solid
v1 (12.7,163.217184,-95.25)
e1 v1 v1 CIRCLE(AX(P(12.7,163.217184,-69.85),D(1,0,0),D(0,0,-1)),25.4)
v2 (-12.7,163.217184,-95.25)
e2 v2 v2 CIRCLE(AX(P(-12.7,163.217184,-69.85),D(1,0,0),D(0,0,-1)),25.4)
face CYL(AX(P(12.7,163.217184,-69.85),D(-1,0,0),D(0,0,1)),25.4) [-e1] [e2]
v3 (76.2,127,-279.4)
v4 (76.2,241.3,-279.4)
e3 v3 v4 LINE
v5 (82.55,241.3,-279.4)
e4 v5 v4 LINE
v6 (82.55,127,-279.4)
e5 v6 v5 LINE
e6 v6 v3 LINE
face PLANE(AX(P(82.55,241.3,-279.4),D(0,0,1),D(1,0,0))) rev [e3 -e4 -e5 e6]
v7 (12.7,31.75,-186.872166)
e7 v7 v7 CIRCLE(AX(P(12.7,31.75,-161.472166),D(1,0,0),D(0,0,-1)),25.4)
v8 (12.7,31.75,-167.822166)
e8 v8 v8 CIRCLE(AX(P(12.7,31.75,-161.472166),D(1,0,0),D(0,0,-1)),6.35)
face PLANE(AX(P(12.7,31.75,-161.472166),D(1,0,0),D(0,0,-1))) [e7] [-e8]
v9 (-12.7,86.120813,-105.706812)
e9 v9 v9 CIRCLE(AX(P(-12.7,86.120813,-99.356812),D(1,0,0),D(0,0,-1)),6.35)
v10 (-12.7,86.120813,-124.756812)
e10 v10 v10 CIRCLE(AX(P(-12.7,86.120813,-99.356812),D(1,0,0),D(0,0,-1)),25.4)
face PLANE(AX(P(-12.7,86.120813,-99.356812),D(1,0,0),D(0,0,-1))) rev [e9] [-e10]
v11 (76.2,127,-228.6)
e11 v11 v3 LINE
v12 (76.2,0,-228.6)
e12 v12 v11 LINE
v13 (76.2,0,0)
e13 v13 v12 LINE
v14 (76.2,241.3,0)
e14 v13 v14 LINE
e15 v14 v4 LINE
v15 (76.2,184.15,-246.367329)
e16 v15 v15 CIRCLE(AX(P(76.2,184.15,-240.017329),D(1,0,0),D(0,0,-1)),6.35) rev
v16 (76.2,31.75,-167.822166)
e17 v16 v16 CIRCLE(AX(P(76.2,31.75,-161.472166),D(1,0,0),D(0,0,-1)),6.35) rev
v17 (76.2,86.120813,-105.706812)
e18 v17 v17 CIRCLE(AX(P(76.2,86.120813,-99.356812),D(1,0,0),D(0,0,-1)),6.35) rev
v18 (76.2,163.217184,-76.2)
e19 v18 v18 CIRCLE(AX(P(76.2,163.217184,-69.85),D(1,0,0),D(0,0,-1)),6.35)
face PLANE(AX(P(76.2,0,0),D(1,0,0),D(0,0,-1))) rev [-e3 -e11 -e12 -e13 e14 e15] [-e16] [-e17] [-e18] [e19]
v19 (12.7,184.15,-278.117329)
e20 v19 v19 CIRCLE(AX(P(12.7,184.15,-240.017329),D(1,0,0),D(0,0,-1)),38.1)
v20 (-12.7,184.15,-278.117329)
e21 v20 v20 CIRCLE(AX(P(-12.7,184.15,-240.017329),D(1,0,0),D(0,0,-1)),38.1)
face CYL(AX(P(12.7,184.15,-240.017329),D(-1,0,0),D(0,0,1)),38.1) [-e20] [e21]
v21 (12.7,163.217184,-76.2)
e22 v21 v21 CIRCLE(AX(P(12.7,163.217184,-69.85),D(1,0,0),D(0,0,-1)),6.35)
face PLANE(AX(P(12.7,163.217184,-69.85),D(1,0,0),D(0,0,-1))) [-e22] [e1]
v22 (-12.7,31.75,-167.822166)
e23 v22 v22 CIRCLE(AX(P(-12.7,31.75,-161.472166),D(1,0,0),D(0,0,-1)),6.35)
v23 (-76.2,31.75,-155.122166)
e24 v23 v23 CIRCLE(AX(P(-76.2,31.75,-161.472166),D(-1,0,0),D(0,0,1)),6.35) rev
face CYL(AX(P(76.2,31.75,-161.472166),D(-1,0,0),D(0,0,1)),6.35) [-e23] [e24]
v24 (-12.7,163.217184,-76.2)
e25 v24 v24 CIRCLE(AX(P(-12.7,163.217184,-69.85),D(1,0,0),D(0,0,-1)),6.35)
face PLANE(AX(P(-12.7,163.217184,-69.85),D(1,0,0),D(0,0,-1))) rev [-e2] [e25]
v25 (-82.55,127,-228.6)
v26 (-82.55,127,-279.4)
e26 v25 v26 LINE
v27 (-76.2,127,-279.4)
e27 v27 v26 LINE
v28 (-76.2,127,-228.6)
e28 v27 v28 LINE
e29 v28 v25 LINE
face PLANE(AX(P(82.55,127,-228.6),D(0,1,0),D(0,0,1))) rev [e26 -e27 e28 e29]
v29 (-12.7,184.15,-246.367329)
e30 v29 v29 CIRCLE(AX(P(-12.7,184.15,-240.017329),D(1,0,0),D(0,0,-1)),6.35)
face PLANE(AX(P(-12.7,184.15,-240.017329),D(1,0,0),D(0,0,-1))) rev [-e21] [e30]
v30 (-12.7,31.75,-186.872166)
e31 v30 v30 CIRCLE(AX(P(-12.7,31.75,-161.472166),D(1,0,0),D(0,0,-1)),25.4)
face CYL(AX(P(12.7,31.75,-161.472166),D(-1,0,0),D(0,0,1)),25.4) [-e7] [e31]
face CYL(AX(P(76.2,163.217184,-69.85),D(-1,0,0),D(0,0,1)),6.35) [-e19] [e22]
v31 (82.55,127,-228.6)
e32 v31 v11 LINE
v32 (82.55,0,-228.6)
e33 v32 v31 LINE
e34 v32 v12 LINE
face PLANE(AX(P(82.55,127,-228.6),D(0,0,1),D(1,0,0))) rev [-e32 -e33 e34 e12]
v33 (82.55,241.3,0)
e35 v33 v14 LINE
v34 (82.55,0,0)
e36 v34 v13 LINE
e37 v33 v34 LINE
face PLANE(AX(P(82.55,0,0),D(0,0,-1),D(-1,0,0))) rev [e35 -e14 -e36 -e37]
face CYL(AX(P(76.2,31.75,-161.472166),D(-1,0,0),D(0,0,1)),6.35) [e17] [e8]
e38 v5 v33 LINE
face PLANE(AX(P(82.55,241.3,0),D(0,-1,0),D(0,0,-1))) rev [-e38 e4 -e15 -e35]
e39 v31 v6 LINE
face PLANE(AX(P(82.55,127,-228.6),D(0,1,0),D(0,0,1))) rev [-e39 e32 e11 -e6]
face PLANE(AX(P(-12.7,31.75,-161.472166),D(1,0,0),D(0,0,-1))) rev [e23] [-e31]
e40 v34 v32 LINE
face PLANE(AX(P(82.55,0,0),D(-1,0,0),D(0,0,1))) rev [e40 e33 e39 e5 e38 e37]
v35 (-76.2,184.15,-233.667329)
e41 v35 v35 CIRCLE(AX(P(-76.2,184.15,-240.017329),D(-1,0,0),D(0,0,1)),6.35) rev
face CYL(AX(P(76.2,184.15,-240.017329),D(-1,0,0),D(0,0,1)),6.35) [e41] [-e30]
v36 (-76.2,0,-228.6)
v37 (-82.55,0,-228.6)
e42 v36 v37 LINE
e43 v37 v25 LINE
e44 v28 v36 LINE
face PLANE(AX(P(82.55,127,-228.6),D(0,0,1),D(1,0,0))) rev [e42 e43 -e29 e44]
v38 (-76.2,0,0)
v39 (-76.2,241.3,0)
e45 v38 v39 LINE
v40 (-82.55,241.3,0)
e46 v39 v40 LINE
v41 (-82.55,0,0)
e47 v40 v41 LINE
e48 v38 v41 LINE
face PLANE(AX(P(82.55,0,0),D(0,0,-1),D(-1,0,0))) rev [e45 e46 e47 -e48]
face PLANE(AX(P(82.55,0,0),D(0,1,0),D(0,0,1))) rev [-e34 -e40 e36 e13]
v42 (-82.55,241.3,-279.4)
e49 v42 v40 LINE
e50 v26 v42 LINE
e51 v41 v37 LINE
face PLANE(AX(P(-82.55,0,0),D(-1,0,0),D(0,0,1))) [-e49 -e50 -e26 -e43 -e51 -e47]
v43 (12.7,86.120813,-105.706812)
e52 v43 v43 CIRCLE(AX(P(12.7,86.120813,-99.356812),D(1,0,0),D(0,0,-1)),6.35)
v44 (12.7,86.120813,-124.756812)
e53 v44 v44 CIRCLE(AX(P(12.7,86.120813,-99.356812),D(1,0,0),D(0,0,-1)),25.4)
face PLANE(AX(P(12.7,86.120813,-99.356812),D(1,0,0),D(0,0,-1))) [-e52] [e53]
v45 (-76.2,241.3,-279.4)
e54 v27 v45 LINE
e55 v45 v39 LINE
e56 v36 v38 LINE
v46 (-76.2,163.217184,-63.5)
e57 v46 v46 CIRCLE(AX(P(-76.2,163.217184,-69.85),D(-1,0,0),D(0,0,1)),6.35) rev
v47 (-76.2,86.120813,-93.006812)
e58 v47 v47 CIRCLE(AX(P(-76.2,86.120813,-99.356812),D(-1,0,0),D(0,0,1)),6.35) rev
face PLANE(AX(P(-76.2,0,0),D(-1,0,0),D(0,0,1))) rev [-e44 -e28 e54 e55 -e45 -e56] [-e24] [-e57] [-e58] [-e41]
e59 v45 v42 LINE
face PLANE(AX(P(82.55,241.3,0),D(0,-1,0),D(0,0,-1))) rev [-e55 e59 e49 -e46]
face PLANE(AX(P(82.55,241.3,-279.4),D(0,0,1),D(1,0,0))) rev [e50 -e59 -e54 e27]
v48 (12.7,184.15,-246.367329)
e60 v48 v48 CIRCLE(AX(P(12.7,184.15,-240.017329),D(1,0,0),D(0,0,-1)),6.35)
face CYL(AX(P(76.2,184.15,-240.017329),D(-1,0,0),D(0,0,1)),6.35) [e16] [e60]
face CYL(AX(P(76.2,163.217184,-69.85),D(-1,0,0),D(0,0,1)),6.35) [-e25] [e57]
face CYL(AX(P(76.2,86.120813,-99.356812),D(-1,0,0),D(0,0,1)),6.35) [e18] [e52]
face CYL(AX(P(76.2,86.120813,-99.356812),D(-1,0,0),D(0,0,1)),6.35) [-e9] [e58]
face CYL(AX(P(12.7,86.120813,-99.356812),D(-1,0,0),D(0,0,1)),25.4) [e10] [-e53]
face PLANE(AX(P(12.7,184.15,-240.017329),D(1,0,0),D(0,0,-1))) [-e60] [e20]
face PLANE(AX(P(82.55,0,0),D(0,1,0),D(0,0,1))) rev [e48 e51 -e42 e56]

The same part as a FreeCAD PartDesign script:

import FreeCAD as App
import Part
import Sketcher

V = App.Vector
Q = App.Units.Quantity


def add_polygon(sketch, points):
    """Adds a closed chain of lines whose ends are joined by coincident constraints."""
    first, n = sketch.GeometryCount, len(points)
    for a, b in zip(points, points[1:] + points[:1]):
        sketch.addGeometry(Part.LineSegment(App.Vector(*a, 0), App.Vector(*b, 0)), False)
    for i in range(n):
        sketch.addConstraint(Sketcher.Constraint("Coincident", first + i, 2, first + (i + 1) % n, 1))

doc = App.newDocument("Part")
body = doc.addObject("PartDesign::Body", "Body")
body.AllowCompound = True

sketch1 = body.newObject("Sketcher::SketchObject", "Sketch")
sketch1.AttachmentSupport = (doc.getObject("YZ_Plane"), [""])
sketch1.MapMode = "FlatFace"
add_polygon(sketch1, [(0, 0), (0, -229), (127, -229), (127, -279), (241, -279), (241, 0)])
sketch1.addConstraint([
    Sketcher.Constraint("Vertical", 0),
    Sketcher.Constraint("Horizontal", 1),
    Sketcher.Constraint("Vertical", 2),
    Sketcher.Constraint("Horizontal", 3),
    Sketcher.Constraint("Vertical", 4),
    Sketcher.Constraint("Horizontal", 5),
    Sketcher.Constraint("Coincident", 5, 2, -1, 1),
    Sketcher.Constraint("DistanceX", 1, 1, 1, 2, Q("5 in")),
    Sketcher.Constraint("DistanceY", 0, 2, 0, 1, Q("9 in")),
    Sketcher.Constraint("DistanceY", 2, 2, 2, 1, Q("2 in")),
    Sketcher.Constraint("DistanceX", 3, 1, 3, 2, Q("4.5 in")),
])
pad1 = body.newObject("PartDesign::Pad", "Pad")
pad1.Profile = sketch1
pad1.Length = Q("6.5 in")
pad1.Midplane = True

sketch2 = body.newObject("Sketcher::SketchObject", "Sketch001")
sketch2.AttachmentSupport = (doc.getObject("XZ_Plane"), [""])
sketch2.MapMode = "FlatFace"
sketch2.AttachmentOffset = App.Placement(V(0, 0, -9.5 * 25.4), App.Rotation())
add_polygon(sketch2, [(-76, -279), (-76, 0), (76, 0), (76, -279)])
sketch2.addConstraint([
    Sketcher.Constraint("Vertical", 0),
    Sketcher.Constraint("Horizontal", 1),
    Sketcher.Constraint("Vertical", 2),
    Sketcher.Constraint("Horizontal", 3),
    Sketcher.Constraint("Symmetric", 0, 2, 1, 2, -1, 1),
    Sketcher.Constraint("DistanceX", 1, 1, 1, 2, Q("6 in")),
    Sketcher.Constraint("DistanceY", 0, 1, 0, 2, Q("11 in")),
])
pocket1 = body.newObject("PartDesign::Pocket", "Pocket")
pocket1.Profile = sketch2
pocket1.Type = "ThroughAll"
pocket1.Reversed = True
body2 = doc.addObject("PartDesign::Body", "Body001")

sketch3 = body2.newObject("Sketcher::SketchObject", "Sketch002")
sketch3.AttachmentSupport = (doc.getObject("YZ_Plane001"), [""])
sketch3.MapMode = "FlatFace"
sketch3.addGeometry(Part.Circle(V(32, -161, 0), V(0, 0, 1), 25), False)
sketch3.addConstraint([
    Sketcher.Constraint("Diameter", 0, Q("2 in")),
    Sketcher.Constraint("DistanceX", -1, 1, 0, 3, Q("1.25 in")),
    Sketcher.Constraint("DistanceY", 0, 3, -1, 1, Q("161.472166 mm")),
])
pad2 = body2.newObject("PartDesign::Pad", "Pad001")
pad2.Profile = sketch3
pad2.Length = Q("1 in")
pad2.Midplane = True
body3 = doc.addObject("PartDesign::Body", "Body002")

sketch4 = body3.newObject("Sketcher::SketchObject", "Sketch003")
sketch4.AttachmentSupport = (doc.getObject("YZ_Plane002"), [""])
sketch4.MapMode = "FlatFace"
sketch4.addGeometry(Part.Circle(V(184, -240, 0), V(0, 0, 1), 38), False)
sketch4.addConstraint([
    Sketcher.Constraint("Diameter", 0, Q("3 in")),
    Sketcher.Constraint("DistanceX", -1, 1, 0, 3, Q("7.25 in")),
    Sketcher.Constraint("DistanceY", 0, 3, -1, 1, Q("240.017329 mm")),
])
pad3 = body3.newObject("PartDesign::Pad", "Pad002")
pad3.Profile = sketch4
pad3.Length = Q("1 in")
pad3.Midplane = True
body4 = doc.addObject("PartDesign::Body", "Body003")

sketch5 = body4.newObject("Sketcher::SketchObject", "Sketch004")
sketch5.AttachmentSupport = (doc.getObject("YZ_Plane003"), [""])
sketch5.MapMode = "FlatFace"
sketch5.addGeometry(Part.Circle(V(163, -70, 0), V(0, 0, 1), 25), False)
sketch5.addConstraint([
    Sketcher.Constraint("Diameter", 0, Q("2 in")),
    Sketcher.Constraint("DistanceY", 0, 3, -1, 1, Q("2.75 in")),
    Sketcher.Constraint("DistanceX", -1, 1, 0, 3, Q("163.217184 mm")),
])
pad4 = body4.newObject("PartDesign::Pad", "Pad003")
pad4.Profile = sketch5
pad4.Length = Q("1 in")
pad4.Midplane = True
body5 = doc.addObject("PartDesign::Body", "Body004")

sketch6 = body5.newObject("Sketcher::SketchObject", "Sketch005")
sketch6.AttachmentSupport = (doc.getObject("YZ_Plane004"), [""])
sketch6.MapMode = "FlatFace"
sketch6.addGeometry(Part.Circle(V(86, -99, 0), V(0, 0, 1), 25), False)
sketch6.addConstraint([
    Sketcher.Constraint("Diameter", 0, Q("2 in")),
    Sketcher.Constraint("DistanceX", -1, 1, 0, 3, Q("86.120813 mm")),
    Sketcher.Constraint("DistanceY", 0, 3, -1, 1, Q("99.356812 mm")),
])
pad5 = body5.newObject("PartDesign::Pad", "Pad004")
pad5.Profile = sketch6
pad5.Length = Q("1 in")
pad5.Midplane = True
body.AllowCompound = True
doc.recompute()

boolean = body.newObject("PartDesign::Boolean", "Boolean")
boolean.Type = "Fuse"
boolean.addObjects([body2])
doc.recompute()

boolean2 = body.newObject("PartDesign::Boolean", "Boolean001")
boolean2.Type = "Fuse"
boolean2.addObjects([body3])
doc.recompute()

boolean3 = body.newObject("PartDesign::Boolean", "Boolean002")
boolean3.Type = "Fuse"
boolean3.addObjects([body4])
doc.recompute()

boolean4 = body.newObject("PartDesign::Boolean", "Boolean003")
boolean4.Type = "Fuse"
boolean4.addObjects([body5])

sketch7 = body.newObject("Sketcher::SketchObject", "Sketch006")
sketch7.AttachmentSupport = (doc.getObject("YZ_Plane"), [""])
sketch7.MapMode = "FlatFace"
sketch7.addGeometry([
    Part.Circle(V(163, -70, 0), V(0, 0, 1), 6),
    Part.Circle(V(86, -99, 0), V(0, 0, 1), 6),
    Part.Circle(V(32, -161, 0), V(0, 0, 1), 6),
    Part.Circle(V(184, -240, 0), V(0, 0, 1), 6),
], False)
sketch7.addConstraint([
    Sketcher.Constraint("Equal", 0, 1),
    Sketcher.Constraint("Equal", 1, 2),
    Sketcher.Constraint("Equal", 2, 3),
    Sketcher.Constraint("Diameter", 0, Q("0.5 in")),
    Sketcher.Constraint("DistanceX", 2, 3, 3, 3, Q("6 in")),
    Sketcher.Constraint("DistanceY", 0, 3, -1, 1, Q("2.75 in")),
    Sketcher.Constraint("DistanceX", -1, 1, 2, 3, Q("1.25 in")),
    Sketcher.Constraint("DistanceY", 3, 3, -1, 1, Q("240.017329 mm")),
    Sketcher.Constraint("DistanceX", 1, 3, 0, 3, Q("77.096372 mm")),
    Sketcher.Constraint("DistanceX", -1, 1, 0, 3, Q("163.217184 mm")),
    Sketcher.Constraint("DistanceY", 1, 3, -1, 1, Q("99.356812 mm")),
    Sketcher.Constraint("DistanceY", 2, 3, -1, 1, Q("161.472166 mm")),
])
pad6 = body.newObject("PartDesign::Pad", "Pad005")
pad6.Profile = sketch7
pad6.Length = Q("6 in")
pad6.Midplane = True

doc.recompute()
